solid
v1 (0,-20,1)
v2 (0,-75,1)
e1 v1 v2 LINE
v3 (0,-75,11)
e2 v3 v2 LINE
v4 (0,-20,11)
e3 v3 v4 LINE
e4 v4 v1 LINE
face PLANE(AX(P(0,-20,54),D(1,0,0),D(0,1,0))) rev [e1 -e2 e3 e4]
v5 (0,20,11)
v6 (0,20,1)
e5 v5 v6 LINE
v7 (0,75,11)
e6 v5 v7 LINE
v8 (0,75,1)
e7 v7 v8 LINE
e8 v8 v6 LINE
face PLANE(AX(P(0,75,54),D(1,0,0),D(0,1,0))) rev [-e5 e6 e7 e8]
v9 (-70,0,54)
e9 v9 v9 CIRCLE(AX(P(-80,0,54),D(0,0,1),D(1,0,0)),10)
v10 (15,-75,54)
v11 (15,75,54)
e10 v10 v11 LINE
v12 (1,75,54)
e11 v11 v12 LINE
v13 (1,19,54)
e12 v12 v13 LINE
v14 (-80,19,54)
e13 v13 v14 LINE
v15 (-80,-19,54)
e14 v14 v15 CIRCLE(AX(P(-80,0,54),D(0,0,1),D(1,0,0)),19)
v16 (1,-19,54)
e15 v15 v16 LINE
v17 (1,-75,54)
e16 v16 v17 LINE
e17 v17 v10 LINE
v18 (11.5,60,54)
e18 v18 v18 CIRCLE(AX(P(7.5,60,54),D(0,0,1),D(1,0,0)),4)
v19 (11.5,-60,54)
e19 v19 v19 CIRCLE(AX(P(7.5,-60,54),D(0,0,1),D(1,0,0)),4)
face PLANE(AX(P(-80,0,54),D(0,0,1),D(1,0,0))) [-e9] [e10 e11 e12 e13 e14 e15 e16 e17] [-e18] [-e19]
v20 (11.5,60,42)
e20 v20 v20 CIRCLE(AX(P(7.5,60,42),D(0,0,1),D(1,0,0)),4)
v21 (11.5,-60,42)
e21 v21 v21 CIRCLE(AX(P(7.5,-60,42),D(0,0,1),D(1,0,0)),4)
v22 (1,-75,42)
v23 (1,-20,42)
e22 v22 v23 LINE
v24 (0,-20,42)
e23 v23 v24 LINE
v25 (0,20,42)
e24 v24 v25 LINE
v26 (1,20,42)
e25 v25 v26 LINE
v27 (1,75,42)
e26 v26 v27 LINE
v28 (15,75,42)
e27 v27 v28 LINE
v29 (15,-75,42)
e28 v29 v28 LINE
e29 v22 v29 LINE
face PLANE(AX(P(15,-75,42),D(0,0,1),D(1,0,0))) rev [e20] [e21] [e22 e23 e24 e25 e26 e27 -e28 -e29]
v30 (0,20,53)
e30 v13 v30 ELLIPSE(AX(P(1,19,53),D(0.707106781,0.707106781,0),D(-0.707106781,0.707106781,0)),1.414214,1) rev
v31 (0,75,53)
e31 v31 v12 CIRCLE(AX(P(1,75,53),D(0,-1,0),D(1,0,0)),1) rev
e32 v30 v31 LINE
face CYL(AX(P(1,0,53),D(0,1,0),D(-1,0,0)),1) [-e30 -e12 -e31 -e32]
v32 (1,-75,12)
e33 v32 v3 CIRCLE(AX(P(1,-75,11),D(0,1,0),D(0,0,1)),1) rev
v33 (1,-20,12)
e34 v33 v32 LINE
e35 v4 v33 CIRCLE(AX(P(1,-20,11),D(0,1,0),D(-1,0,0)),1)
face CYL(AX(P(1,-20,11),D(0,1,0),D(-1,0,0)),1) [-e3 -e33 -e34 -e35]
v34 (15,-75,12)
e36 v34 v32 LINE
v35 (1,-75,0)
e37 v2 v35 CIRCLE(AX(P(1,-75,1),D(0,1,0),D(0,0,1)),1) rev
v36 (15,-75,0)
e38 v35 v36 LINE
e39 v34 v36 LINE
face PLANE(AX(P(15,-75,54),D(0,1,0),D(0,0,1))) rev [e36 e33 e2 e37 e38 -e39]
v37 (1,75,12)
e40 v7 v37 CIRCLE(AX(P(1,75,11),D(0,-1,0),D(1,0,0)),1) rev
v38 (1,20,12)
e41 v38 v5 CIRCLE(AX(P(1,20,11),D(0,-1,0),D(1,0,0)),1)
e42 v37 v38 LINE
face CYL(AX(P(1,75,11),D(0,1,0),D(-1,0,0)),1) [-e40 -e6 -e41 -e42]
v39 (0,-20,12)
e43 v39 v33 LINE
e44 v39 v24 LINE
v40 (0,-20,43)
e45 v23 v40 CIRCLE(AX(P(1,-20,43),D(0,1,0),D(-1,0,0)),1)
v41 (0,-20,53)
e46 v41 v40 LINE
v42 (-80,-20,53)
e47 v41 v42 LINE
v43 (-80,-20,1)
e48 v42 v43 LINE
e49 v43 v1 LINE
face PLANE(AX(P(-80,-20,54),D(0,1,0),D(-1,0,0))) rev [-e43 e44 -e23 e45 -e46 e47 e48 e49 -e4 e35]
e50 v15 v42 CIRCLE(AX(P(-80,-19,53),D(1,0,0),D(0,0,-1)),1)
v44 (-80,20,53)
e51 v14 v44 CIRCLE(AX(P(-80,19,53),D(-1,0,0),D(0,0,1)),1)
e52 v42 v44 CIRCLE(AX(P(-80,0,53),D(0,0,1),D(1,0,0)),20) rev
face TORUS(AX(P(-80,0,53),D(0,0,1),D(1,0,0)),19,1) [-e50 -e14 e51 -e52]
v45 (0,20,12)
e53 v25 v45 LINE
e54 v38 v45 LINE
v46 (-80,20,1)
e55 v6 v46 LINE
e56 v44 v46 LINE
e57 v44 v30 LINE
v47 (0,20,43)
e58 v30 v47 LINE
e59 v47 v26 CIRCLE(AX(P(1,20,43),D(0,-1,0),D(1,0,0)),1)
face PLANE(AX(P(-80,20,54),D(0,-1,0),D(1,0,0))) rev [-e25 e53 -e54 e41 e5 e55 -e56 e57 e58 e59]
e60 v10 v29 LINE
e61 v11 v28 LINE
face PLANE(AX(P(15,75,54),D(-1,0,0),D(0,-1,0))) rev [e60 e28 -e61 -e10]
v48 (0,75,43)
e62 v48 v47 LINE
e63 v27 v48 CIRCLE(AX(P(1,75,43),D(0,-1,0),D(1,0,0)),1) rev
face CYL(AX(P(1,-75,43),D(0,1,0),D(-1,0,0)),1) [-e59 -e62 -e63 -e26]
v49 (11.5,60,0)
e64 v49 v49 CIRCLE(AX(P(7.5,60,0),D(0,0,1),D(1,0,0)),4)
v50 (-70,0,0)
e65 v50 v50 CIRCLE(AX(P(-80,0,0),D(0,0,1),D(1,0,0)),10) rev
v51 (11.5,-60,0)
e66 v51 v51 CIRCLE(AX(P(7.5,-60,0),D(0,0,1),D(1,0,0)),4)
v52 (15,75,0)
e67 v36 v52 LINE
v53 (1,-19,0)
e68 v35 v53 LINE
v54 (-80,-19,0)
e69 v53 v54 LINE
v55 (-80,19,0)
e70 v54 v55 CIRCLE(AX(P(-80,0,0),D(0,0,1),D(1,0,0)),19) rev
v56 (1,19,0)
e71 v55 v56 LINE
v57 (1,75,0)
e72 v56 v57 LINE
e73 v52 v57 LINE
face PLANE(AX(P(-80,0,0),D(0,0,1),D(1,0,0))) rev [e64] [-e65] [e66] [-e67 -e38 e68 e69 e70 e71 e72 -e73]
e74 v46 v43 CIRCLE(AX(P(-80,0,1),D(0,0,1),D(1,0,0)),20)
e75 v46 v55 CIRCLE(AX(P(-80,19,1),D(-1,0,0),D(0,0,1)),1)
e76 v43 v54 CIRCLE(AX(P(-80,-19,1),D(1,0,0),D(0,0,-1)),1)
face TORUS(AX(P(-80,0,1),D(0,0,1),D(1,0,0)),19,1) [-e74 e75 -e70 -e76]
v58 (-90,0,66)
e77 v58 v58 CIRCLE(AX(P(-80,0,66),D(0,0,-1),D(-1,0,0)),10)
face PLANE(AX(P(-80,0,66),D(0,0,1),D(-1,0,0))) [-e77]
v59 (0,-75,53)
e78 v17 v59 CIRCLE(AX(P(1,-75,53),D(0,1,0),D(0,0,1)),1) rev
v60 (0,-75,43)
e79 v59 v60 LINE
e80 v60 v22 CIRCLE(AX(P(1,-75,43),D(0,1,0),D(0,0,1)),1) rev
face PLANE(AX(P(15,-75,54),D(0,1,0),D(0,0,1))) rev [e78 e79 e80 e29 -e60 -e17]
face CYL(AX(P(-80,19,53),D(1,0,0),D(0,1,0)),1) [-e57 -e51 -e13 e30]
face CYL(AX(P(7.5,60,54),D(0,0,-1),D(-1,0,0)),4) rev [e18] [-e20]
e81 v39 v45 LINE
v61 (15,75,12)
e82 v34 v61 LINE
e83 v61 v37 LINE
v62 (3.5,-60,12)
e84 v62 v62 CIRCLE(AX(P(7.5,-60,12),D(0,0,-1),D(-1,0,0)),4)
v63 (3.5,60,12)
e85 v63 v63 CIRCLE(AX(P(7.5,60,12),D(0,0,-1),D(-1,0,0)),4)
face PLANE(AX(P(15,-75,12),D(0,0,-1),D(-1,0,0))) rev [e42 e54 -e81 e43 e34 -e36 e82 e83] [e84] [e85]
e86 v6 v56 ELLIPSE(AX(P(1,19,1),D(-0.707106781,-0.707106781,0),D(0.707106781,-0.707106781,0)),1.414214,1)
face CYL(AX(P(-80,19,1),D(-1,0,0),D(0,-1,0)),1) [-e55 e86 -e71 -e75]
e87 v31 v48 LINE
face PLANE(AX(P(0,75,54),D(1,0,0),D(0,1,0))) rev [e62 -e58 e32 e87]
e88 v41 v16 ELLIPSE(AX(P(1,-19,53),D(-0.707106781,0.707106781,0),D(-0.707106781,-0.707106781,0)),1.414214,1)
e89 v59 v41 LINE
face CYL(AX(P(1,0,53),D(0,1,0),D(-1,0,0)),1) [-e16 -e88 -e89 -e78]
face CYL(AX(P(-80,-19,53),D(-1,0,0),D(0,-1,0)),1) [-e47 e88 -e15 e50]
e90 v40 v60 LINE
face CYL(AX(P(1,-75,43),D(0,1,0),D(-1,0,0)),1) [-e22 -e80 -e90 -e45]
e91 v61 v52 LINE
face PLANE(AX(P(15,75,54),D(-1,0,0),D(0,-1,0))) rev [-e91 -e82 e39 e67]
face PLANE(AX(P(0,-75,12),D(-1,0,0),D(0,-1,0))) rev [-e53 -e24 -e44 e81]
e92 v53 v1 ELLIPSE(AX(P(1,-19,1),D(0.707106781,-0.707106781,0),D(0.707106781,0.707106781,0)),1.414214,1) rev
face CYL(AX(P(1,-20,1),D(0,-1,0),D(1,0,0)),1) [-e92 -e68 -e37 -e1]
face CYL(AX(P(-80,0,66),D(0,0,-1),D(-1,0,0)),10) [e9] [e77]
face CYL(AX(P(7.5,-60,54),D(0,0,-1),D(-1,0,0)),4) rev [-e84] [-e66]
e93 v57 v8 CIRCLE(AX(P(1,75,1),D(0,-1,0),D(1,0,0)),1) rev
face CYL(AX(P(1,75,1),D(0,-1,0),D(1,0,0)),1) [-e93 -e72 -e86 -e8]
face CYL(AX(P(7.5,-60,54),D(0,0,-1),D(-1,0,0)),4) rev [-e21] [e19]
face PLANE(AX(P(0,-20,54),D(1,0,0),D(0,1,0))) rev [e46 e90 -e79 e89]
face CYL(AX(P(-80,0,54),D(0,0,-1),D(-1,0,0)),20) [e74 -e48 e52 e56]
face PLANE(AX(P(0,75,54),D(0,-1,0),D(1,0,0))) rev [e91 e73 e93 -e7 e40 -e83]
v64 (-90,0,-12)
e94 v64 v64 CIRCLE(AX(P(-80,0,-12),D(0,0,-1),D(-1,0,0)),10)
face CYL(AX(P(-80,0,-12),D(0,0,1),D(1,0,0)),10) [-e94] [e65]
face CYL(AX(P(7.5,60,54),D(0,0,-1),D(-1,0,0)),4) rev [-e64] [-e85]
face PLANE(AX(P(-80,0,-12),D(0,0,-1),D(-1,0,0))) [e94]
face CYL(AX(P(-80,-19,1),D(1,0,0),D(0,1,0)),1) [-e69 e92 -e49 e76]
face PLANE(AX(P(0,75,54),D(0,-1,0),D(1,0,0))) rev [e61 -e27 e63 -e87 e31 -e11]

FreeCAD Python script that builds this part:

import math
import FreeCAD as App
import Part
import Sketcher
from FreeCAD import Vector
Q = App.Units.Quantity


def edges_at(feature, points):
    """Names of the edges that pass closest to the given points."""
    edges = feature.Shape.Edges
    near = lambda p: min(range(len(edges)), key=lambda i: edges[i].distToShape(Part.Vertex(*p))[0])
    return sorted({f"Edge{near(p) + 1}" for p in points})

doc = App.newDocument("Part")
body = doc.addObject("PartDesign::Body", "Body")

# Sketch on XY plane
sketch1 = body.newObject("Sketcher::SketchObject", "Sketch")
sketch1.AttachmentSupport = (doc.getObject("XY_Plane"), [""])
sketch1.MapMode = "FlatFace"
sketch1.addGeometry([
    Part.LineSegment(Vector(0, 75, 0), Vector(0, 20, 0)),  # 0
    Part.LineSegment(Vector(0, 20, 0), Vector(-80, 20, 0)),  # 1
    Part.ArcOfCircle(Part.Circle(Vector(-80, 0, 0), Vector(0, 0, 1), 20), math.radians(90), math.radians(270)),  # 2
    Part.LineSegment(Vector(-80, -20, 0), Vector(0, -20, 0)),  # 3
    Part.LineSegment(Vector(0, -20, 0), Vector(0, -75, 0)),  # 4
    Part.LineSegment(Vector(0, -75, 0), Vector(15, -75, 0)),  # 5
    Part.LineSegment(Vector(15, -75, 0), Vector(15, 75, 0)),  # 6
    Part.LineSegment(Vector(15, 75, 0), Vector(0, 75, 0)),  # 7
    Part.Circle(Vector(7.5, -60, 0), Vector(0, 0, 1), 4),  # 8
    Part.Circle(Vector(7.5, 60, 0), Vector(0, 0, 1), 4),  # 9
], False)
sketch1.addConstraint([
    Sketcher.Constraint("Coincident", 0, 2, 1, 1),
    Sketcher.Constraint("Tangent", 1, 2, 2, 1),
    Sketcher.Constraint("Tangent", 2, 2, 3, 1),
    Sketcher.Constraint("Coincident", 3, 2, 4, 1),
    Sketcher.Constraint("Coincident", 4, 2, 5, 1),
    Sketcher.Constraint("Coincident", 5, 2, 6, 1),
    Sketcher.Constraint("Coincident", 6, 2, 7, 1),
    Sketcher.Constraint("Coincident", 7, 2, 0, 1),
    Sketcher.Constraint("Vertical", 0),
    Sketcher.Constraint("Horizontal", 1),
    Sketcher.Constraint("Horizontal", 3),
    Sketcher.Constraint("Vertical", 4),
    Sketcher.Constraint("Horizontal", 5),
    Sketcher.Constraint("Vertical", 6),
    Sketcher.Constraint("Horizontal", 7),
    Sketcher.Constraint("Equal", 8, 9),
    Sketcher.Constraint("Symmetric", 0, 2, 3, 2, -1, 1),
    Sketcher.Constraint("Symmetric", 8, 3, 9, 3, -1),
    Sketcher.Constraint("Symmetric", 4, 2, 7, 2, -1),
    Sketcher.Constraint("Diameter", 8, Q("8 mm")),
    Sketcher.Constraint("Radius", 2, Q("20 mm")),
    Sketcher.Constraint("DistanceX", 1, 2, 1, 1, Q("80 mm")),
    Sketcher.Constraint("DistanceX", 5, 1, 5, 2, Q("15 mm")),
    Sketcher.Constraint("DistanceY", 0, 2, 0, 1, Q("55 mm")),
    Sketcher.Constraint("DistanceY", 8, 3, -1, 1, Q("60 mm")),
    Sketcher.Constraint("DistanceX", -1, 1, 8, 3, Q("7.5 mm")),
])
pad1 = body.newObject("PartDesign::Pad", "Pad")
pad1.Profile = sketch1
pad1.Length = 54

# Sketch on XY plane
sketch2 = body.newObject("Sketcher::SketchObject", "Sketch001")
sketch2.AttachmentSupport = (doc.getObject("XY_Plane"), [""])
sketch2.MapMode = "FlatFace"
sketch2.addGeometry(Part.Circle(Vector(-80, 0, 0), Vector(0, 0, 1), 10), False)
sketch2.addConstraint([
    Sketcher.Constraint("PointOnObject", 0, 3, -1),
    Sketcher.Constraint("Diameter", 0, Q("20 mm")),
    Sketcher.Constraint("DistanceX", 0, 3, -1, 1, Q("80 mm")),
])
pad2 = body.newObject("PartDesign::Pad", "Pad001")
pad2.Profile = sketch2
pad2.Length = 12
pad2.Reversed = True
doc.recompute()

datumplane = body.newObject("PartDesign::Plane", "DatumPlane")
datumplane.AttachmentSupport = (doc.getObject("XY_Plane"), [""])
datumplane.MapMode = "FlatFace"
datumplane.AttachmentOffset = App.Placement(Vector(0, 0, 27), App.Rotation())
mirrored = body.newObject("PartDesign::Mirrored", "Mirrored")
mirrored.Originals = [pad2]
mirrored.MirrorPlane = (datumplane, [""])
body.Tip = mirrored

# Sketch on XZ plane
sketch3 = body.newObject("Sketcher::SketchObject", "Sketch002")
sketch3.AttachmentSupport = (doc.getObject("XZ_Plane"), [""])
sketch3.MapMode = "FlatFace"
sketch3.AttachmentOffset = App.Placement(Vector(0, 0, -75), App.Rotation())
sketch3.addGeometry([
    Part.LineSegment(Vector(0, 12, 0), Vector(0, 42, 0)),
    Part.LineSegment(Vector(0, 42, 0), Vector(15, 42, 0)),
    Part.LineSegment(Vector(15, 42, 0), Vector(15, 12, 0)),
    Part.LineSegment(Vector(15, 12, 0), Vector(0, 12, 0)),
], False)
sketch3.addConstraint([
    Sketcher.Constraint("Coincident", 0, 2, 1, 1),
    Sketcher.Constraint("Coincident", 1, 2, 2, 1),
    Sketcher.Constraint("Coincident", 2, 2, 3, 1),
    Sketcher.Constraint("Coincident", 3, 2, 0, 1),
    Sketcher.Constraint("Vertical", 0),
    Sketcher.Constraint("Horizontal", 1),
    Sketcher.Constraint("Vertical", 2),
    Sketcher.Constraint("Horizontal", 3),
    Sketcher.Constraint("PointOnObject", 0, 2, -2),
    Sketcher.Constraint("DistanceX", 1, 1, 1, 2, Q("15 mm")),
    Sketcher.Constraint("DistanceY", 0, 1, 0, 2, Q("30 mm")),
    Sketcher.Constraint("DistanceY", -1, 1, 0, 2, Q("42 mm")),
])
pocket1 = body.newObject("PartDesign::Pocket", "Pocket")
pocket1.Profile = sketch3
pocket1.Length = 150
pocket1.Reversed = True
doc.recompute()

fillet = body.newObject("PartDesign::Fillet", "Fillet")
fillet.Base = (pocket1, edges_at(pocket1, [
    (0, -47.5, 0),
    (-40, -20, 0),
    (-100, 0, 0),
    (0, -47.5, 54),
    (0, 47.5, 54),
    (-40, 20, 54),
    (-100, 0, 54),
    (0, -47.5, 42),
    (0, 47.5, 42),
    (0, -47.5, 12),
    (0, 47.5, 12),
    (-40, 20, 0),
    (-40, -20, 54),
    (0, 47.5, 0),
]))
fillet.Radius = 1

doc.recompute()
